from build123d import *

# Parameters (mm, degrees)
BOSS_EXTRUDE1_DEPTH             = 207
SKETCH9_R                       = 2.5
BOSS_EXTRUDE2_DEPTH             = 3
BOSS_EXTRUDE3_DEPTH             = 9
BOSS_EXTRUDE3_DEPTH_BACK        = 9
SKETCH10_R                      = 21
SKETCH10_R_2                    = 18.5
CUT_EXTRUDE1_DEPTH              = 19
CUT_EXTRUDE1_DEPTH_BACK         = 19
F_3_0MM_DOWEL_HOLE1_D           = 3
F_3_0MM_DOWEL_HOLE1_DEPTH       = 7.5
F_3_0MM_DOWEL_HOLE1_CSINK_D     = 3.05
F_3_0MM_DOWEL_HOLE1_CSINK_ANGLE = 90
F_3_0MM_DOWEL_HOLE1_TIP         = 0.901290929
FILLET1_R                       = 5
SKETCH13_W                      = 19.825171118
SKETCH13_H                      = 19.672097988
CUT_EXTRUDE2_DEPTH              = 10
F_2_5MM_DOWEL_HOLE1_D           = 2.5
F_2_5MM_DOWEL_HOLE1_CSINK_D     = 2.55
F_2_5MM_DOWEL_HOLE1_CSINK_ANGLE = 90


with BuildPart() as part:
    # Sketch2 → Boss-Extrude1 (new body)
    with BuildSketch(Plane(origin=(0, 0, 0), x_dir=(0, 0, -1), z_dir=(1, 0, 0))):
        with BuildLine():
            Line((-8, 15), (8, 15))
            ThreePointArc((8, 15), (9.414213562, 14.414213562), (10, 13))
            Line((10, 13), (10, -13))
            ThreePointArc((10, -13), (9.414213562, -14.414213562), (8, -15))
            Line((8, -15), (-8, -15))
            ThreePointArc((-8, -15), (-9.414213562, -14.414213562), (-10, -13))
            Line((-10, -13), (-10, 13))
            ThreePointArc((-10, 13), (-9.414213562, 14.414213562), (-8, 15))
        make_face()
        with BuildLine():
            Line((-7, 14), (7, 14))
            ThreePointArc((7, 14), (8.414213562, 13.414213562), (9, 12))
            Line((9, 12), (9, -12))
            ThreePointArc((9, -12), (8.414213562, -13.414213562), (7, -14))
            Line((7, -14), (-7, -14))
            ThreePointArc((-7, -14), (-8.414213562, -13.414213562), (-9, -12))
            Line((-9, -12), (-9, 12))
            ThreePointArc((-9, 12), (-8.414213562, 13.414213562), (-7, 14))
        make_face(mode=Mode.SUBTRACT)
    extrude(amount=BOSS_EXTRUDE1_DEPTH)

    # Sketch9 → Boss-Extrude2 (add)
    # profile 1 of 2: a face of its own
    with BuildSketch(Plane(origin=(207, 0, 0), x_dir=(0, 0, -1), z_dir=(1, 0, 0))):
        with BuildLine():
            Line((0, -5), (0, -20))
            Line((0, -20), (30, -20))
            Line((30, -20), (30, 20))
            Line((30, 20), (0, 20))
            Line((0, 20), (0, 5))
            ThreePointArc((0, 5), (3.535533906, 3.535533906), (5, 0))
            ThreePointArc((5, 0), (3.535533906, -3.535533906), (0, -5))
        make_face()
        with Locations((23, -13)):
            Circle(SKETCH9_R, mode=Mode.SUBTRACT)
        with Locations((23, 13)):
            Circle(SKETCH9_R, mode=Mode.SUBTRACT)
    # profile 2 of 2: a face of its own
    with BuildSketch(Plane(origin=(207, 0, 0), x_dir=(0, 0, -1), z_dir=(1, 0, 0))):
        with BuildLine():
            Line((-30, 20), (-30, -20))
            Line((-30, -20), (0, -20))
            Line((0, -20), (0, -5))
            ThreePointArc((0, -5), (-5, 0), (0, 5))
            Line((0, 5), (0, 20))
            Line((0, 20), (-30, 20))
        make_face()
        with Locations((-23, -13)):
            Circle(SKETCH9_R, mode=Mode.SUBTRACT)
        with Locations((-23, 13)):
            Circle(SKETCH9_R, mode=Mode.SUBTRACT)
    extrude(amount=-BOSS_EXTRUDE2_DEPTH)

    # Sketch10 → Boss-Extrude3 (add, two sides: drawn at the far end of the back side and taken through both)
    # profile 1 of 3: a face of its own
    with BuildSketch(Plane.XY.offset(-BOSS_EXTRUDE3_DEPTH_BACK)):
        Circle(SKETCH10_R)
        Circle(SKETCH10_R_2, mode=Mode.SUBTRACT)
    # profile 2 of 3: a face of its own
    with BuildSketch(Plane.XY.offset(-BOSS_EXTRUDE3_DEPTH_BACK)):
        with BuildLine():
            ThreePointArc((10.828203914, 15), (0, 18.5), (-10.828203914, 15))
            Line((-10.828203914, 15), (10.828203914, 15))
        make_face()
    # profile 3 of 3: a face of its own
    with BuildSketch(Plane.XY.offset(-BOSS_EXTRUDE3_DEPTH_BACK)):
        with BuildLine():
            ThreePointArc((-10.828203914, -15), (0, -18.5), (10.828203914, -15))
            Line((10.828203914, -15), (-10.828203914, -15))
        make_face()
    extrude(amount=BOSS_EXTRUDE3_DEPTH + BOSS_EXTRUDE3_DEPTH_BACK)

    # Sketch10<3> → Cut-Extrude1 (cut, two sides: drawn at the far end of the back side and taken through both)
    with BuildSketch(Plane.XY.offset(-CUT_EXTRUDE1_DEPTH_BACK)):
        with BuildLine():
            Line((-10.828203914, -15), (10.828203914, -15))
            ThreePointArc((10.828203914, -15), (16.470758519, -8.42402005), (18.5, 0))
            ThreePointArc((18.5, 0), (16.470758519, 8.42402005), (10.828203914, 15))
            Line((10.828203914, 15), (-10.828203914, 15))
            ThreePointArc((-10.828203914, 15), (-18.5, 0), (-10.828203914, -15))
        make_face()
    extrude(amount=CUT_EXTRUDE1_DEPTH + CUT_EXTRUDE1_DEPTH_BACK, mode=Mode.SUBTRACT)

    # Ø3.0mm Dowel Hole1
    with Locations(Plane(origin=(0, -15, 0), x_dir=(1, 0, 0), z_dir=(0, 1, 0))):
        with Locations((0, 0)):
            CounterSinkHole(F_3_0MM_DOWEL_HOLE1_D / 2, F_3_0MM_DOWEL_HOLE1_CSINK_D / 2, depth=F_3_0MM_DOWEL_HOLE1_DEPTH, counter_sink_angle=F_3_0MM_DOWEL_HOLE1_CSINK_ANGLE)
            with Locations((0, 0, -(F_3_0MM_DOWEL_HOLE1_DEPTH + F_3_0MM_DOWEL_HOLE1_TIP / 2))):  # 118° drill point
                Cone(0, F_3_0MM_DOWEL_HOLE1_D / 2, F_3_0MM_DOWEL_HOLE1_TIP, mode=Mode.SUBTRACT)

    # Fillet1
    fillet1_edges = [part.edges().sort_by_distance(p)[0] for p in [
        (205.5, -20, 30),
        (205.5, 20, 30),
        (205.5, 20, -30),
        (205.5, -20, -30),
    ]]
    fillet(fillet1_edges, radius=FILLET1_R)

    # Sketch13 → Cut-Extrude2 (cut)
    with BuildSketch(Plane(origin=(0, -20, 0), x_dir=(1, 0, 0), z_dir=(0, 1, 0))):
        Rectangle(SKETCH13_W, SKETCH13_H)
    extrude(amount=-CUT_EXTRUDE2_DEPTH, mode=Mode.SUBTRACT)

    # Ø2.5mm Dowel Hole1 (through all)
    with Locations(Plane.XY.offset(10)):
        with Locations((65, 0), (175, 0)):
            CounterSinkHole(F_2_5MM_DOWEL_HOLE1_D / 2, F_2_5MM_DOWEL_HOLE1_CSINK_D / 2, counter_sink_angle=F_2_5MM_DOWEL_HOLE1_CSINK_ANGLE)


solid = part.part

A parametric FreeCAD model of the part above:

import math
import FreeCAD as App
import Part
import Sketcher

V = App.Vector
Q = App.Units.Quantity


def edges_at(feature, points):
    """Names of the edges that pass closest to the given points."""
    edges = feature.Shape.Edges
    near = lambda p: min(range(len(edges)), key=lambda i: edges[i].distToShape(Part.Vertex(*p))[0])
    return sorted({f"Edge{near(p) + 1}" for p in points})


def add_polygon(sketch, points):
    """Adds a closed chain of lines whose ends are joined by coincident constraints."""
    first, n = sketch.GeometryCount, len(points)
    for a, b in zip(points, points[1:] + points[:1]):
        sketch.addGeometry(Part.LineSegment(App.Vector(*a, 0), App.Vector(*b, 0)), False)
    for i in range(n):
        sketch.addConstraint(Sketcher.Constraint("Coincident", first + i, 2, first + (i + 1) % n, 1))

doc = App.newDocument("Part")
body = doc.addObject("PartDesign::Body", "Body")

# Sketch on YZ plane
sketch1 = body.newObject("Sketcher::SketchObject", "Sketch")
sketch1.AttachmentSupport = (doc.getObject("YZ_Plane"), [""])
sketch1.MapMode = "FlatFace"
sketch1.addGeometry([
    Part.LineSegment(V(15, -8, 0), V(15, 8, 0)),  # 0
    Part.ArcOfCircle(Part.Circle(V(13, 8, 0), V(0, 0, 1), 2), math.radians(0), math.radians(90)),  # 1
    Part.LineSegment(V(13, 10, 0), V(-13, 10, 0)),  # 2
    Part.ArcOfCircle(Part.Circle(V(-13, 8, 0), V(0, 0, 1), 2), math.radians(90), math.radians(180)),  # 3
    Part.LineSegment(V(-15, 8, 0), V(-15, -8, 0)),  # 4
    Part.ArcOfCircle(Part.Circle(V(-13, -8, 0), V(0, 0, 1), 2), math.radians(-180), math.radians(-90)),  # 5
    Part.LineSegment(V(-13, -10, 0), V(13, -10, 0)),  # 6
    Part.ArcOfCircle(Part.Circle(V(13, -8, 0), V(0, 0, 1), 2), math.radians(-90), math.radians(0)),  # 7
    Part.LineSegment(V(14, 7, 0), V(14, -7, 0)),  # 8
    Part.ArcOfCircle(Part.Circle(V(12, -7, 0), V(0, 0, 1), 2), math.radians(-90), math.radians(0)),  # 9
    Part.LineSegment(V(12, -9, 0), V(-12, -9, 0)),  # 10
    Part.ArcOfCircle(Part.Circle(V(-12, -7, 0), V(0, 0, 1), 2), math.radians(-180), math.radians(-90)),  # 11
    Part.LineSegment(V(-14, -7, 0), V(-14, 7, 0)),  # 12
    Part.ArcOfCircle(Part.Circle(V(-12, 7, 0), V(0, 0, 1), 2), math.radians(90), math.radians(180)),  # 13
    Part.LineSegment(V(-12, 9, 0), V(12, 9, 0)),  # 14
    Part.ArcOfCircle(Part.Circle(V(12, 7, 0), V(0, 0, 1), 2), math.radians(0), math.radians(90)),  # 15
], False)
sketch1.addConstraint([
    Sketcher.Constraint("Tangent", 0, 2, 1, 1),
    Sketcher.Constraint("Tangent", 1, 2, 2, 1),
    Sketcher.Constraint("Tangent", 2, 2, 3, 1),
    Sketcher.Constraint("Tangent", 3, 2, 4, 1),
    Sketcher.Constraint("Tangent", 4, 2, 5, 1),
    Sketcher.Constraint("Tangent", 5, 2, 6, 1),
    Sketcher.Constraint("Tangent", 6, 2, 7, 1),
    Sketcher.Constraint("Tangent", 7, 2, 0, 1),
    Sketcher.Constraint("Tangent", 8, 2, 9, 2),
    Sketcher.Constraint("Tangent", 9, 1, 10, 1),
    Sketcher.Constraint("Tangent", 10, 2, 11, 2),
    Sketcher.Constraint("Tangent", 11, 1, 12, 1),
    Sketcher.Constraint("Tangent", 12, 2, 13, 2),
    Sketcher.Constraint("Tangent", 13, 1, 14, 1),
    Sketcher.Constraint("Tangent", 14, 2, 15, 2),
    Sketcher.Constraint("Tangent", 15, 1, 8, 1),
    Sketcher.Constraint("Vertical", 0),
    Sketcher.Constraint("Horizontal", 2),
    Sketcher.Constraint("Vertical", 4),
    Sketcher.Constraint("Horizontal", 6),
    Sketcher.Constraint("Vertical", 8),
    Sketcher.Constraint("Horizontal", 10),
    Sketcher.Constraint("Vertical", 12),
    Sketcher.Constraint("Horizontal", 14),
    Sketcher.Constraint("Equal", 1, 3),
    Sketcher.Constraint("Equal", 3, 5),
    Sketcher.Constraint("Equal", 5, 7),
    Sketcher.Constraint("Equal", 7, 9),
    Sketcher.Constraint("Equal", 9, 11),
    Sketcher.Constraint("Equal", 11, 13),
    Sketcher.Constraint("Equal", 13, 15),
    Sketcher.Constraint("Symmetric", 1, 3, 5, 3, -1, 1),
    Sketcher.Constraint("Symmetric", 9, 3, 13, 3, -1, 1),
    Sketcher.Constraint("Radius", 1, Q("2 mm")),
    Sketcher.Constraint("DistanceX", 2, 2, 2, 1, Q("26 mm")),
    Sketcher.Constraint("DistanceX", 10, 2, 10, 1, Q("24 mm")),
    Sketcher.Constraint("DistanceY", 0, 1, 0, 2, Q("16 mm")),
    Sketcher.Constraint("DistanceY", 8, 2, 8, 1, Q("14 mm")),
])
pad1 = body.newObject("PartDesign::Pad", "Pad")
pad1.Profile = sketch1
pad1.Length = 207

# Sketch on YZ plane
sketch2 = body.newObject("Sketcher::SketchObject", "Sketch001")
sketch2.AttachmentSupport = (doc.getObject("YZ_Plane"), [""])
sketch2.MapMode = "FlatFace"
sketch2.AttachmentOffset = App.Placement(V(0, 0, 207), App.Rotation())
add_polygon(sketch2, [(-20, -30), (20, -30), (20, 30), (-20, 30)])  # lines 0-3
sketch2.addGeometry(Part.ArcOfCircle(Part.Circle(V(0, 0, 0), V(0, 0, 1), 5), math.radians(180), math.radians(270)), False)  # 4
sketch2.addGeometry(Part.ArcOfCircle(Part.Circle(V(0, 0, 0), V(0, 0, 1), 5), math.radians(0), math.radians(180)), False)  # 5
sketch2.addGeometry(Part.ArcOfCircle(Part.Circle(V(0, 0, 0), V(0, 0, 1), 5), math.radians(-90), math.radians(0)), False)  # 6
sketch2.addGeometry(Part.Circle(V(-13, -23, 0), V(0, 0, 1), 2.5), False)  # 7
sketch2.addGeometry(Part.Circle(V(13, -23, 0), V(0, 0, 1), 2.5), False)  # 8
sketch2.addGeometry(Part.Circle(V(-13, 23, 0), V(0, 0, 1), 2.5), False)  # 9
sketch2.addGeometry(Part.Circle(V(13, 23, 0), V(0, 0, 1), 2.5), False)  # 10
sketch2.addConstraint([
    Sketcher.Constraint("Tangent", 4, 1, 5, 2),
    Sketcher.Constraint("Tangent", 5, 1, 6, 2),
    Sketcher.Constraint("Tangent", 6, 1, 4, 2),
    Sketcher.Constraint("Horizontal", 0),
    Sketcher.Constraint("Vertical", 1),
    Sketcher.Constraint("Horizontal", 2),
    Sketcher.Constraint("Vertical", 3),
    Sketcher.Constraint("Coincident", 4, 3, -1, 1),
    Sketcher.Constraint("Equal", 7, 8),
    Sketcher.Constraint("Equal", 8, 9),
    Sketcher.Constraint("Equal", 9, 10),
    Sketcher.Constraint("Symmetric", 8, 3, 9, 3, -1, 1),
    Sketcher.Constraint("Symmetric", 7, 3, 10, 3, -1, 1),
    Sketcher.Constraint("Symmetric", 0, 2, 2, 2, -1, 1),
    Sketcher.Constraint("Symmetric", 7, 3, 8, 3, -2),
    Sketcher.Constraint("PointOnObject", 4, 1, -1),
    Sketcher.Constraint("PointOnObject", 5, 1, -1),
    Sketcher.Constraint("PointOnObject", 6, 1, -2),
    Sketcher.Constraint("Diameter", 7, Q("5 mm")),
    Sketcher.Constraint("Radius", 4, Q("5 mm")),
    Sketcher.Constraint("DistanceX", 0, 1, 0, 2, Q("40 mm")),
    Sketcher.Constraint("DistanceY", 1, 1, 1, 2, Q("60 mm")),
    Sketcher.Constraint("DistanceX", 7, 3, -1, 1, Q("13 mm")),
    Sketcher.Constraint("DistanceY", 7, 3, -1, 1, Q("23 mm")),
])
pad2 = body.newObject("PartDesign::Pad", "Pad001")
pad2.Profile = sketch2
pad2.Length = 3
pad2.Reversed = True

# Sketch on XY plane
sketch3 = body.newObject("Sketcher::SketchObject", "Sketch002")
sketch3.AttachmentSupport = (doc.getObject("XY_Plane"), [""])
sketch3.MapMode = "FlatFace"
sketch3.addGeometry([
    Part.Circle(V(0, 0, 0), V(0, 0, 1), 21),  # 0
    Part.ArcOfCircle(Part.Circle(V(0, 0, 0), V(0, 0, 1), 18), math.radians(-54), math.radians(54)),  # 1
    Part.LineSegment(V(11, -15, 0), V(-11, -15, 0)),  # 2
    Part.ArcOfCircle(Part.Circle(V(0, 0, 0), V(0, 0, 1), 18), math.radians(126), math.radians(234)),  # 3
    Part.LineSegment(V(-11, 15, 0), V(11, 15, 0)),  # 4
], False)
sketch3.addConstraint([
    Sketcher.Constraint("Coincident", 1, 1, 2, 1),
    Sketcher.Constraint("Coincident", 2, 2, 3, 2),
    Sketcher.Constraint("Coincident", 3, 1, 4, 1),
    Sketcher.Constraint("Coincident", 4, 2, 1, 2),
    Sketcher.Constraint("Horizontal", 2),
    Sketcher.Constraint("Horizontal", 4),
    Sketcher.Constraint("Coincident", 0, 3, -1, 1),
    Sketcher.Constraint("Coincident", 1, 3, -1, 1),
    Sketcher.Constraint("Coincident", 3, 3, -1, 1),
    Sketcher.Constraint("Equal", 1, 3),
    Sketcher.Constraint("Vertical", 2, 2, 3, 1),
    Sketcher.Constraint("Diameter", 0, Q("42 mm")),
    Sketcher.Constraint("Radius", 1, Q("18.5 mm")),
    Sketcher.Constraint("DistanceY", 1, 1, -1, 1, Q("15 mm")),
])
pad3 = body.newObject("PartDesign::Pad", "Pad002")
pad3.Profile = sketch3
pad3.Type = "TwoLengths"
pad3.Length = 9
pad3.Length2 = 9

# Sketch on XY plane
sketch4 = body.newObject("Sketcher::SketchObject", "Sketch003")
sketch4.AttachmentSupport = (doc.getObject("XY_Plane"), [""])
sketch4.MapMode = "FlatFace"
sketch4.addGeometry([
    Part.LineSegment(V(-11, -15, 0), V(11, -15, 0)),  # 0
    Part.ArcOfCircle(Part.Circle(V(0, 0, 0), V(0, 0, 1), 19), math.radians(-54), math.radians(0)),  # 1
    Part.ArcOfCircle(Part.Circle(V(0, 0, 0), V(0, 0, 1), 19), math.radians(0), math.radians(54)),  # 2
    Part.LineSegment(V(11, 15, 0), V(-11, 15, 0)),  # 3
    Part.ArcOfCircle(Part.Circle(V(0, 0, 0), V(0, 0, 1), 18), math.radians(126), math.radians(234)),  # 4
], False)
sketch4.addConstraint([
    Sketcher.Constraint("Coincident", 0, 2, 1, 1),
    Sketcher.Constraint("Tangent", 1, 2, 2, 1),
    Sketcher.Constraint("Coincident", 2, 2, 3, 1),
    Sketcher.Constraint("Coincident", 3, 2, 4, 1),
    Sketcher.Constraint("Coincident", 4, 2, 0, 1),
    Sketcher.Constraint("Horizontal", 0),
    Sketcher.Constraint("Horizontal", 3),
    Sketcher.Constraint("Coincident", 1, 3, -1, 1),
    Sketcher.Constraint("Coincident", 4, 3, -1, 1),
    Sketcher.Constraint("Equal", 1, 2),
    Sketcher.Constraint("Equal", 2, 4),
    Sketcher.Constraint("PointOnObject", 1, 2, -1),
    Sketcher.Constraint("Vertical", 0, 2, 2, 2),
    Sketcher.Constraint("Radius", 1, Q("18.5 mm")),
    Sketcher.Constraint("DistanceY", 0, 2, -1, 1, Q("15 mm")),
])
pocket1 = body.newObject("PartDesign::Pocket", "Pocket")
pocket1.Profile = sketch4
pocket1.Type = "ThroughAll"
pocket1.Midplane = True

# Sketch on XZ plane
sketch5 = body.newObject("Sketcher::SketchObject", "Sketch004")
sketch5.AttachmentSupport = (doc.getObject("XZ_Plane"), [""])
sketch5.MapMode = "FlatFace"
sketch5.AttachmentOffset = App.Placement(V(0, 0, 15), App.Rotation())
sketch5.addGeometry(Part.Circle(V(0, 0, 0), V(0, 0, 1), 1.5), False)
sketch5.addConstraint([
    Sketcher.Constraint("Coincident", 0, 3, -1, 1),
    Sketcher.Constraint("Diameter", 0, Q("3 mm")),
])
doc.recompute()
hole = body.newObject("PartDesign::Hole", "Hole")
hole.Profile = sketch5
hole.ThreadType = "None"
hole.Diameter = 3
hole.DepthType = "Dimension"
hole.Depth = 7.5
hole.DrillPoint = "Angled"
hole.DrillPointAngle = 118
hole.HoleCutType = "Countersink"
hole.HoleCutDiameter = 3.05
hole.HoleCutCountersinkAngle = 90
hole.Reversed = True
doc.recompute()

fillet = body.newObject("PartDesign::Fillet", "Fillet")
fillet.Base = (hole, edges_at(hole, [
    (205.5, -20, 30),
    (205.5, 20, 30),
    (205.5, 20, -30),
    (205.5, -20, -30),
]))
fillet.Radius = 5

# Sketch on XZ plane
sketch6 = body.newObject("Sketcher::SketchObject", "Sketch005")
sketch6.AttachmentSupport = (doc.getObject("XZ_Plane"), [""])
sketch6.MapMode = "FlatFace"
sketch6.AttachmentOffset = App.Placement(V(0, 0, 20), App.Rotation())
add_polygon(sketch6, [(-10, -10), (-10, 10), (10, 10), (10, -10)])  # lines 0-3
sketch6.addConstraint([
    Sketcher.Constraint("Vertical", 0),
    Sketcher.Constraint("Horizontal", 1),
    Sketcher.Constraint("Vertical", 2),
    Sketcher.Constraint("Horizontal", 3),
    Sketcher.Constraint("Symmetric", 0, 2, 2, 2, -1, 1),
    Sketcher.Constraint("DistanceX", 1, 1, 1, 2, Q("19.825171 mm")),
    Sketcher.Constraint("DistanceY", 0, 1, 0, 2, Q("19.672098 mm")),
])
pocket2 = body.newObject("PartDesign::Pocket", "Pocket001")
pocket2.Profile = sketch6
pocket2.Length = 10
pocket2.Reversed = True

# Sketch on XY plane
sketch7 = body.newObject("Sketcher::SketchObject", "Sketch006")
sketch7.AttachmentSupport = (doc.getObject("XY_Plane"), [""])
sketch7.MapMode = "FlatFace"
sketch7.AttachmentOffset = App.Placement(V(0, 0, 10), App.Rotation())
sketch7.addGeometry([
    Part.Circle(V(65, 0, 0), V(0, 0, 1), 1.2),
    Part.Circle(V(175, 0, 0), V(0, 0, 1), 1.2),
], False)
sketch7.addConstraint([
    Sketcher.Constraint("Equal", 0, 1),
    Sketcher.Constraint("PointOnObject", 0, 3, -1),
    Sketcher.Constraint("PointOnObject", 1, 3, -1),
    Sketcher.Constraint("Diameter", 0, Q("2.5 mm")),
    Sketcher.Constraint("DistanceX", -1, 1, 0, 3, Q("65 mm")),
    Sketcher.Constraint("DistanceX", -1, 1, 1, 3, Q("175 mm")),
])
doc.recompute()
hole2 = body.newObject("PartDesign::Hole", "Hole001")
hole2.Profile = sketch7
hole2.ThreadType = "None"
hole2.Diameter = 2.5
hole2.DepthType = "ThroughAll"
hole2.HoleCutType = "Countersink"
hole2.HoleCutDiameter = 2.55
hole2.HoleCutCountersinkAngle = 90

doc.recompute()
